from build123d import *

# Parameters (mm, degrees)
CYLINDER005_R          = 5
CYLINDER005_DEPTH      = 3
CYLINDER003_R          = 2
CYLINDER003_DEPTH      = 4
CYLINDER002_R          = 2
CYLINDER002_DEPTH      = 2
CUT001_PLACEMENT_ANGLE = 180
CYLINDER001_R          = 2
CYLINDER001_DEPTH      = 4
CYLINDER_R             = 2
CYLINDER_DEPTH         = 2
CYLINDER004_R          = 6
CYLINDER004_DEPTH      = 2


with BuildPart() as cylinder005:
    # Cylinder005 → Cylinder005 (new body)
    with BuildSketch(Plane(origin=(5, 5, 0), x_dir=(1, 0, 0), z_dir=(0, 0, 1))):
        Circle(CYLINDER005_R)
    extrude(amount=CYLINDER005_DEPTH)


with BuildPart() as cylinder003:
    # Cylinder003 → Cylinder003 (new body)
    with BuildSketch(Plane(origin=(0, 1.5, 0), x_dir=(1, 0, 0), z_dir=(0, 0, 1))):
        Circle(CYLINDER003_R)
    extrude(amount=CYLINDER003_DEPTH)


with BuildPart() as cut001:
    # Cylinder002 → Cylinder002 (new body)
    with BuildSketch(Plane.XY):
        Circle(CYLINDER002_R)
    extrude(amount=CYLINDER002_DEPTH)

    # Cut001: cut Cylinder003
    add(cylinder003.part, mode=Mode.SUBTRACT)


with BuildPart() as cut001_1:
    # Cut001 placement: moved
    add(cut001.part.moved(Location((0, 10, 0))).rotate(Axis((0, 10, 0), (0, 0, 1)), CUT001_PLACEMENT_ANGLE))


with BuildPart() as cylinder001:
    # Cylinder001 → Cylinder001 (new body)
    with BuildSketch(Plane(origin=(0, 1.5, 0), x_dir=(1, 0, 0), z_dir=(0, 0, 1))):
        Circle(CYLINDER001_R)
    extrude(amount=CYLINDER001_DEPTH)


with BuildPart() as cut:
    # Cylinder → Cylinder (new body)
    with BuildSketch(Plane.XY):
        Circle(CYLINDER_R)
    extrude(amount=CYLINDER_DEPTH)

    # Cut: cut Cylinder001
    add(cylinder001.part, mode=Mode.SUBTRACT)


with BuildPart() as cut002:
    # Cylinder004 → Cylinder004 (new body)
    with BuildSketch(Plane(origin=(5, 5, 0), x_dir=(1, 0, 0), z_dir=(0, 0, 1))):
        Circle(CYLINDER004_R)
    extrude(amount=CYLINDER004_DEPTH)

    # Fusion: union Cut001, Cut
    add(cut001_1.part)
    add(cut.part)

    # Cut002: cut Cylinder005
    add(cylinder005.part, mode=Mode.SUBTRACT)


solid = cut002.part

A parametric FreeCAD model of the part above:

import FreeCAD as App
import Part
import Sketcher
Q = App.Units.Quantity

doc = App.newDocument("Part")
body = doc.addObject("PartDesign::Body", "Body")

# Sketch on XY plane
sketch1 = body.newObject("Sketcher::SketchObject", "Sketch")
sketch1.AttachmentSupport = (doc.getObject("XY_Plane"), [""])
sketch1.MapMode = "FlatFace"
sketch1.addGeometry(Part.Circle(App.Vector(5, 5, 0), App.Vector(0, 0, 1), 5), False)
sketch1.addConstraint(Sketcher.Constraint("Diameter", 0, Q("10 mm")))
sketch1.addConstraint(Sketcher.Constraint("DistanceX", -1, 1, 0, 3, Q("5 mm")))
sketch1.addConstraint(Sketcher.Constraint("DistanceY", -1, 1, 0, 3, Q("5 mm")))
pad1 = body.newObject("PartDesign::Pad", "Pad")
pad1.Profile = sketch1
pad1.Length = 3
body2 = doc.addObject("PartDesign::Body", "Body001")

# Sketch on XY plane
sketch2 = body2.newObject("Sketcher::SketchObject", "Sketch001")
sketch2.AttachmentSupport = (doc.getObject("XY_Plane001"), [""])
sketch2.MapMode = "FlatFace"
sketch2.addGeometry(Part.Circle(App.Vector(0, 1.5, 0), App.Vector(0, 0, 1), 2), False)
sketch2.addConstraint(Sketcher.Constraint("PointOnObject", 0, 3, -2))
sketch2.addConstraint(Sketcher.Constraint("Diameter", 0, Q("4 mm")))
sketch2.addConstraint(Sketcher.Constraint("DistanceY", -1, 1, 0, 3, Q("1.5 mm")))
pad2 = body2.newObject("PartDesign::Pad", "Pad001")
pad2.Profile = sketch2
pad2.Length = 4
body3 = doc.addObject("PartDesign::Body", "Body002")

# Sketch on XY plane
sketch3 = body3.newObject("Sketcher::SketchObject", "Sketch002")
sketch3.AttachmentSupport = (doc.getObject("XY_Plane002"), [""])
sketch3.MapMode = "FlatFace"
sketch3.addGeometry(Part.Circle(App.Vector(0, 0, 0), App.Vector(0, 0, 1), 2), False)
sketch3.addConstraint(Sketcher.Constraint("Coincident", 0, 3, -1, 1))
sketch3.addConstraint(Sketcher.Constraint("Diameter", 0, Q("4 mm")))
pad3 = body3.newObject("PartDesign::Pad", "Pad002")
pad3.Profile = sketch3
pad3.Length = 2
doc.recompute()

boolean = body3.newObject("PartDesign::Boolean", "Boolean")
boolean.Type = "Cut"
boolean.addObjects([body2])
body4 = doc.addObject("PartDesign::Body", "Body003")
doc.recompute()

body3.Placement = App.Placement(App.Vector(0, 10, 0), App.Rotation(App.Vector(0, 0, 1), 180))
boolean2 = body4.newObject("PartDesign::Boolean", "Boolean001")
boolean2.Type = "Fuse"
boolean2.addObjects([body3])
body5 = doc.addObject("PartDesign::Body", "Body004")

# Sketch on XY plane
sketch4 = body5.newObject("Sketcher::SketchObject", "Sketch003")
sketch4.AttachmentSupport = (doc.getObject("XY_Plane004"), [""])
sketch4.MapMode = "FlatFace"
sketch4.addGeometry(Part.Circle(App.Vector(0, 1.5, 0), App.Vector(0, 0, 1), 2), False)
sketch4.addConstraint(Sketcher.Constraint("PointOnObject", 0, 3, -2))
sketch4.addConstraint(Sketcher.Constraint("Diameter", 0, Q("4 mm")))
sketch4.addConstraint(Sketcher.Constraint("DistanceY", -1, 1, 0, 3, Q("1.5 mm")))
pad4 = body5.newObject("PartDesign::Pad", "Pad003")
pad4.Profile = sketch4
pad4.Length = 4
body6 = doc.addObject("PartDesign::Body", "Body005")

# Sketch on XY plane
sketch5 = body6.newObject("Sketcher::SketchObject", "Sketch004")
sketch5.AttachmentSupport = (doc.getObject("XY_Plane005"), [""])
sketch5.MapMode = "FlatFace"
sketch5.addGeometry(Part.Circle(App.Vector(0, 0, 0), App.Vector(0, 0, 1), 2), False)
sketch5.addConstraint(Sketcher.Constraint("Coincident", 0, 3, -1, 1))
sketch5.addConstraint(Sketcher.Constraint("Diameter", 0, Q("4 mm")))
pad5 = body6.newObject("PartDesign::Pad", "Pad004")
pad5.Profile = sketch5
pad5.Length = 2
doc.recompute()

boolean3 = body6.newObject("PartDesign::Boolean", "Boolean002")
boolean3.Type = "Cut"
boolean3.addObjects([body5])
body7 = doc.addObject("PartDesign::Body", "Body006")

# Sketch on XY plane
sketch6 = body7.newObject("Sketcher::SketchObject", "Sketch005")
sketch6.AttachmentSupport = (doc.getObject("XY_Plane006"), [""])
sketch6.MapMode = "FlatFace"
sketch6.addGeometry(Part.Circle(App.Vector(5, 5, 0), App.Vector(0, 0, 1), 6), False)
sketch6.addConstraint(Sketcher.Constraint("Diameter", 0, Q("12 mm")))
sketch6.addConstraint(Sketcher.Constraint("DistanceX", -1, 1, 0, 3, Q("5 mm")))
sketch6.addConstraint(Sketcher.Constraint("DistanceY", -1, 1, 0, 3, Q("5 mm")))
pad6 = body7.newObject("PartDesign::Pad", "Pad005")
pad6.Profile = sketch6
pad6.Length = 2
doc.recompute()

boolean4 = body7.newObject("PartDesign::Boolean", "Boolean003")
boolean4.Type = "Fuse"
boolean4.addObjects([body4])
doc.recompute()

boolean5 = body7.newObject("PartDesign::Boolean", "Boolean004")
boolean5.Type = "Fuse"
boolean5.addObjects([body6])
doc.recompute()

boolean6 = body7.newObject("PartDesign::Boolean", "Boolean005")
boolean6.Type = "Cut"
boolean6.addObjects([body])

doc.recompute()
